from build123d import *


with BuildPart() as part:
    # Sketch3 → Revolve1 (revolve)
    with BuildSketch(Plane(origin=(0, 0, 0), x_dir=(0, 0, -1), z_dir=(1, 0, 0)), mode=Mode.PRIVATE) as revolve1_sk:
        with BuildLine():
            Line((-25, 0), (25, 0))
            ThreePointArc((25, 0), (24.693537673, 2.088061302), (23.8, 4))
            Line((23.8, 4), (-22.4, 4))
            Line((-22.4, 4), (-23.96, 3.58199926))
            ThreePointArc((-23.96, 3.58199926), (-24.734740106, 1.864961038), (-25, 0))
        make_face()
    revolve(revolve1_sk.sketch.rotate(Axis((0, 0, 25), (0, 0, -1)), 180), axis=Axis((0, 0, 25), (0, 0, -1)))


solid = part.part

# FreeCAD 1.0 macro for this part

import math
import FreeCAD as App
import Part
import Sketcher

V = App.Vector
Q = App.Units.Quantity

doc = App.newDocument("Part")
body = doc.addObject("PartDesign::Body", "Body")

sketch1 = doc.addObject("Sketcher::SketchObject", "Sketch")
body.addObject(sketch1)
sketch1.AttachmentSupport = (doc.YZ_Plane, [""])
sketch1.MapMode = "FlatFace"
sketch1.addGeometry([
    Part.LineSegment(V(0, 25, 0), V(0, -25, 0)),
    Part.ArcOfCircle(Part.Circle(V(0, -17.733333, 0), V(0, 0, 1), 7.266667), math.radians(-90), math.radians(-56.601512)),
    Part.LineSegment(V(4, -23.8, 0), V(4, 22.4, 0)),
    Part.LineSegment(V(4, 22.4, 0), V(3.581999, 23.96, 0)),
    Part.ArcOfCircle(Part.Circle(V(0, 18.311385, 0), V(0, 0, 1), 6.688615), math.radians(57.619678), math.radians(90)),
], False)
sketch1.addConstraint([
    Sketcher.Constraint("Coincident", 0, 2, 1, 1),
    Sketcher.Constraint("Coincident", 1, 2, 2, 1),
    Sketcher.Constraint("Coincident", 2, 2, 3, 1),
    Sketcher.Constraint("Coincident", 3, 2, 4, 1),
    Sketcher.Constraint("Coincident", 4, 2, 0, 1),
    Sketcher.Constraint("Vertical", 0),
    Sketcher.Constraint("Vertical", 2),
    Sketcher.Constraint("Symmetric", 0, 2, 4, 2, -1, 1),
    Sketcher.Constraint("PointOnObject", 1, 3, -2),
    Sketcher.Constraint("PointOnObject", 4, 3, -2),
    Sketcher.Constraint("DistanceY", 0, 2, 0, 1, 50.0),
    Sketcher.Constraint("Angle", 3, Q("105 deg")),
    Sketcher.Constraint("DistanceY", 2, 1, 2, 2, 46.2),
    Sketcher.Constraint("DistanceX", -1, 1, 1, 2, 4.0),
    Sketcher.Constraint("DistanceY", 1, 2, -1, 1, 23.8),
    Sketcher.Constraint("DistanceY", -1, 1, 3, 2, 23.96),
])
revolution = doc.addObject("PartDesign::Revolution", "Revolution")
body.addObject(revolution)
revolution.Profile = sketch1
revolution.ReferenceAxis = (sketch1, ["V_Axis"])
revolution.Angle = 360

doc.recompute()
